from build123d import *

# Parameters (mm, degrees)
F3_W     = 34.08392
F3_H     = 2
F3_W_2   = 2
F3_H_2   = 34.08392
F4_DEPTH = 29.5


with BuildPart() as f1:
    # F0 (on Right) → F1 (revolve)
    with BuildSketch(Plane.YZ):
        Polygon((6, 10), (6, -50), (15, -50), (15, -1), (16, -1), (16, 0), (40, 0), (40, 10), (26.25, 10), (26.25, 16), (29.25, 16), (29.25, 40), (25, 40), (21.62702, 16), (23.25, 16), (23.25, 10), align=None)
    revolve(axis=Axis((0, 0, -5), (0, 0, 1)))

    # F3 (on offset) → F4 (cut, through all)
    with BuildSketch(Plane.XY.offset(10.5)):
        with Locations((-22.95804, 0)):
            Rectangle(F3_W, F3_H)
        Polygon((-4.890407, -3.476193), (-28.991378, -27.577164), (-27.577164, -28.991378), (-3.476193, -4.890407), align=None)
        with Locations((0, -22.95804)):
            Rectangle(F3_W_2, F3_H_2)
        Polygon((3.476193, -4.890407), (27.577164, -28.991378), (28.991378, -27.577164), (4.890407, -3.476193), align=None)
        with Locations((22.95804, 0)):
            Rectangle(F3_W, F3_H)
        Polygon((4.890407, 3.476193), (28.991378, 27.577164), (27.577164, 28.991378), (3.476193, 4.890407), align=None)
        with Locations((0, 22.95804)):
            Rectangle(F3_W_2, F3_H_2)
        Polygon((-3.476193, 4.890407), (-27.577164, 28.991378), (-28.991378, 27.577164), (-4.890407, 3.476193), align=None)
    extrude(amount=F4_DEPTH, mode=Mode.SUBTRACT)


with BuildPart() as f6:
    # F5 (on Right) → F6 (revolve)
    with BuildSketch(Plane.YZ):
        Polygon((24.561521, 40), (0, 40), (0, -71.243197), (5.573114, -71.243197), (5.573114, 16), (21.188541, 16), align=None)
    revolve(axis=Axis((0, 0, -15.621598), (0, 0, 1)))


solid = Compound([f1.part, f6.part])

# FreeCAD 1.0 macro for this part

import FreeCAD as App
import Part
import Sketcher
Q = App.Units.Quantity

doc = App.newDocument("Part")
body = doc.addObject("PartDesign::Body", "Body")

# Sketch on YZ plane
sketch1 = body.newObject("Sketcher::SketchObject", "Sketch")
sketch1.AttachmentSupport = (doc.getObject("YZ_Plane"), [""])
sketch1.MapMode = "FlatFace"
sketch1.addGeometry([
    Part.LineSegment(App.Vector(6, 10, 0), App.Vector(6, -50, 0)),  # 0
    Part.LineSegment(App.Vector(6, -50, 0), App.Vector(15, -50, 0)),  # 1
    Part.LineSegment(App.Vector(15, -50, 0), App.Vector(15, -1, 0)),  # 2
    Part.LineSegment(App.Vector(15, -1, 0), App.Vector(16, -1, 0)),  # 3
    Part.LineSegment(App.Vector(16, -1, 0), App.Vector(16, 0, 0)),  # 4
    Part.LineSegment(App.Vector(16, 0, 0), App.Vector(40, 0, 0)),  # 5
    Part.LineSegment(App.Vector(40, 0, 0), App.Vector(40, 10, 0)),  # 6
    Part.LineSegment(App.Vector(40, 10, 0), App.Vector(26.2, 10, 0)),  # 7
    Part.LineSegment(App.Vector(26.2, 10, 0), App.Vector(26.2, 16, 0)),  # 8
    Part.LineSegment(App.Vector(26.2, 16, 0), App.Vector(29.2, 16, 0)),  # 9
    Part.LineSegment(App.Vector(29.2, 16, 0), App.Vector(29.2, 40, 0)),  # 10
    Part.LineSegment(App.Vector(29.2, 40, 0), App.Vector(25, 40, 0)),  # 11
    Part.LineSegment(App.Vector(25, 40, 0), App.Vector(21.6, 16, 0)),  # 12
    Part.LineSegment(App.Vector(21.6, 16, 0), App.Vector(23.2, 16, 0)),  # 13
    Part.LineSegment(App.Vector(23.2, 16, 0), App.Vector(23.2, 10, 0)),  # 14
    Part.LineSegment(App.Vector(23.2, 10, 0), App.Vector(6, 10, 0)),  # 15
], False)
sketch1.addConstraint([
    Sketcher.Constraint("Coincident", 0, 2, 1, 1),
    Sketcher.Constraint("Coincident", 1, 2, 2, 1),
    Sketcher.Constraint("Coincident", 2, 2, 3, 1),
    Sketcher.Constraint("Coincident", 3, 2, 4, 1),
    Sketcher.Constraint("Coincident", 4, 2, 5, 1),
    Sketcher.Constraint("Coincident", 5, 2, 6, 1),
    Sketcher.Constraint("Coincident", 6, 2, 7, 1),
    Sketcher.Constraint("Coincident", 7, 2, 8, 1),
    Sketcher.Constraint("Coincident", 8, 2, 9, 1),
    Sketcher.Constraint("Coincident", 9, 2, 10, 1),
    Sketcher.Constraint("Coincident", 10, 2, 11, 1),
    Sketcher.Constraint("Coincident", 11, 2, 12, 1),
    Sketcher.Constraint("Coincident", 12, 2, 13, 1),
    Sketcher.Constraint("Coincident", 13, 2, 14, 1),
    Sketcher.Constraint("Coincident", 14, 2, 15, 1),
    Sketcher.Constraint("Coincident", 15, 2, 0, 1),
    Sketcher.Constraint("Vertical", 0),
    Sketcher.Constraint("Horizontal", 1),
    Sketcher.Constraint("Vertical", 2),
    Sketcher.Constraint("Horizontal", 3),
    Sketcher.Constraint("Vertical", 4),
    Sketcher.Constraint("Horizontal", 5),
    Sketcher.Constraint("Vertical", 6),
    Sketcher.Constraint("Horizontal", 7),
    Sketcher.Constraint("Vertical", 8),
    Sketcher.Constraint("Horizontal", 9),
    Sketcher.Constraint("Vertical", 10),
    Sketcher.Constraint("Horizontal", 11),
    Sketcher.Constraint("Horizontal", 13),
    Sketcher.Constraint("Vertical", 14),
    Sketcher.Constraint("Horizontal", 15),
    Sketcher.Constraint("PointOnObject", 4, 2, -1),
    Sketcher.Constraint("Horizontal", 9, 2, 12, 2),
    Sketcher.Constraint("Horizontal", 7, 2, 14, 2),
    Sketcher.Constraint("Equal", 3, 4),
    Sketcher.Constraint("Equal", 5, 10),
    Sketcher.Constraint("DistanceX", 1, 1, 1, 2, Q("9 mm")),
    Sketcher.Constraint("DistanceX", 3, 1, 3, 2, Q("1 mm")),
    Sketcher.Constraint("DistanceX", 5, 1, 5, 2, Q("24 mm")),
    Sketcher.Constraint("DistanceX", 9, 1, 9, 2, Q("3 mm")),
    Sketcher.Constraint("DistanceY", 0, 2, 0, 1, Q("60 mm")),
    Sketcher.Constraint("DistanceY", 2, 1, 2, 2, Q("49 mm")),
    Sketcher.Constraint("DistanceY", 8, 1, 8, 2, Q("6 mm")),
    Sketcher.Constraint("Angle", 12, Q("-98 deg")),
    Sketcher.Constraint("DistanceX", -1, 1, 0, 2, Q("6 mm")),
    Sketcher.Constraint("DistanceX", -1, 1, 11, 2, Q("25 mm")),
    Sketcher.Constraint("DistanceX", 13, 2, 8, 2, Q("3 mm")),
    Sketcher.Constraint("DistanceX", 7, 2, 7, 1, Q("13.75 mm")),
])
revolution = body.newObject("PartDesign::Revolution", "Revolution")
revolution.Profile = sketch1
revolution.ReferenceAxis = (sketch1, ["V_Axis"])
revolution.Angle = 360

# Sketch on XY plane
sketch2 = body.newObject("Sketcher::SketchObject", "Sketch001")
sketch2.AttachmentSupport = (doc.getObject("XY_Plane"), [""])
sketch2.MapMode = "FlatFace"
sketch2.AttachmentOffset = App.Placement(App.Vector(0, 0, 10.5), App.Rotation())
sketch2.addGeometry([
    Part.LineSegment(App.Vector(-40, 1, 0), App.Vector(-40, -1, 0)),  # 0
    Part.LineSegment(App.Vector(-40, -1, 0), App.Vector(-5.9, -1, 0)),  # 1
    Part.LineSegment(App.Vector(-5.9, -1, 0), App.Vector(-5.9, 1, 0)),  # 2
    Part.LineSegment(App.Vector(-5.9, 1, 0), App.Vector(-40, 1, 0)),  # 3
    Part.LineSegment(App.Vector(-4.9, -3.5, 0), App.Vector(-29, -27.6, 0)),  # 4
    Part.LineSegment(App.Vector(-29, -27.6, 0), App.Vector(-27.6, -29, 0)),  # 5
    Part.LineSegment(App.Vector(-27.6, -29, 0), App.Vector(-3.5, -4.9, 0)),  # 6
    Part.LineSegment(App.Vector(-3.5, -4.9, 0), App.Vector(-4.9, -3.5, 0)),  # 7
    Part.LineSegment(App.Vector(-1, -5.9, 0), App.Vector(-1, -40, 0)),  # 8
    Part.LineSegment(App.Vector(-1, -40, 0), App.Vector(1, -40, 0)),  # 9
    Part.LineSegment(App.Vector(1, -40, 0), App.Vector(1, -5.9, 0)),  # 10
    Part.LineSegment(App.Vector(1, -5.9, 0), App.Vector(-1, -5.9, 0)),  # 11
    Part.LineSegment(App.Vector(3.5, -4.9, 0), App.Vector(27.6, -29, 0)),  # 12
    Part.LineSegment(App.Vector(27.6, -29, 0), App.Vector(29, -27.6, 0)),  # 13
    Part.LineSegment(App.Vector(29, -27.6, 0), App.Vector(4.9, -3.5, 0)),  # 14
    Part.LineSegment(App.Vector(4.9, -3.5, 0), App.Vector(3.5, -4.9, 0)),  # 15
    Part.LineSegment(App.Vector(5.9, 1, 0), App.Vector(5.9, -1, 0)),  # 16
    Part.LineSegment(App.Vector(5.9, -1, 0), App.Vector(40, -1, 0)),  # 17
    Part.LineSegment(App.Vector(40, -1, 0), App.Vector(40, 1, 0)),  # 18
    Part.LineSegment(App.Vector(40, 1, 0), App.Vector(5.9, 1, 0)),  # 19
    Part.LineSegment(App.Vector(4.9, 3.5, 0), App.Vector(29, 27.6, 0)),  # 20
    Part.LineSegment(App.Vector(29, 27.6, 0), App.Vector(27.6, 29, 0)),  # 21
    Part.LineSegment(App.Vector(27.6, 29, 0), App.Vector(3.5, 4.9, 0)),  # 22
    Part.LineSegment(App.Vector(3.5, 4.9, 0), App.Vector(4.9, 3.5, 0)),  # 23
    Part.LineSegment(App.Vector(-1, 40, 0), App.Vector(-1, 5.9, 0)),  # 24
    Part.LineSegment(App.Vector(-1, 5.9, 0), App.Vector(1, 5.9, 0)),  # 25
    Part.LineSegment(App.Vector(1, 5.9, 0), App.Vector(1, 40, 0)),  # 26
    Part.LineSegment(App.Vector(1, 40, 0), App.Vector(-1, 40, 0)),  # 27
    Part.LineSegment(App.Vector(-3.5, 4.9, 0), App.Vector(-27.6, 29, 0)),  # 28
    Part.LineSegment(App.Vector(-27.6, 29, 0), App.Vector(-29, 27.6, 0)),  # 29
    Part.LineSegment(App.Vector(-29, 27.6, 0), App.Vector(-4.9, 3.5, 0)),  # 30
    Part.LineSegment(App.Vector(-4.9, 3.5, 0), App.Vector(-3.5, 4.9, 0)),  # 31
], False)
sketch2.addConstraint([
    Sketcher.Constraint("Coincident", 0, 2, 1, 1),
    Sketcher.Constraint("Coincident", 1, 2, 2, 1),
    Sketcher.Constraint("Coincident", 2, 2, 3, 1),
    Sketcher.Constraint("Coincident", 3, 2, 0, 1),
    Sketcher.Constraint("Coincident", 4, 2, 5, 1),
    Sketcher.Constraint("Coincident", 5, 2, 6, 1),
    Sketcher.Constraint("Coincident", 6, 2, 7, 1),
    Sketcher.Constraint("Coincident", 7, 2, 4, 1),
    Sketcher.Constraint("Coincident", 8, 2, 9, 1),
    Sketcher.Constraint("Coincident", 9, 2, 10, 1),
    Sketcher.Constraint("Coincident", 10, 2, 11, 1),
    Sketcher.Constraint("Coincident", 11, 2, 8, 1),
    Sketcher.Constraint("Coincident", 12, 2, 13, 1),
    Sketcher.Constraint("Coincident", 13, 2, 14, 1),
    Sketcher.Constraint("Coincident", 14, 2, 15, 1),
    Sketcher.Constraint("Coincident", 15, 2, 12, 1),
    Sketcher.Constraint("Coincident", 16, 2, 17, 1),
    Sketcher.Constraint("Coincident", 17, 2, 18, 1),
    Sketcher.Constraint("Coincident", 18, 2, 19, 1),
    Sketcher.Constraint("Coincident", 19, 2, 16, 1),
    Sketcher.Constraint("Coincident", 20, 2, 21, 1),
    Sketcher.Constraint("Coincident", 21, 2, 22, 1),
    Sketcher.Constraint("Coincident", 22, 2, 23, 1),
    Sketcher.Constraint("Coincident", 23, 2, 20, 1),
    Sketcher.Constraint("Coincident", 24, 2, 25, 1),
    Sketcher.Constraint("Coincident", 25, 2, 26, 1),
    Sketcher.Constraint("Coincident", 26, 2, 27, 1),
    Sketcher.Constraint("Coincident", 27, 2, 24, 1),
    Sketcher.Constraint("Coincident", 28, 2, 29, 1),
    Sketcher.Constraint("Coincident", 29, 2, 30, 1),
    Sketcher.Constraint("Coincident", 30, 2, 31, 1),
    Sketcher.Constraint("Coincident", 31, 2, 28, 1),
    Sketcher.Constraint("Vertical", 0),
    Sketcher.Constraint("Horizontal", 1),
    Sketcher.Constraint("Vertical", 2),
    Sketcher.Constraint("Horizontal", 3),
    Sketcher.Constraint("Vertical", 8),
    Sketcher.Constraint("Horizontal", 9),
    Sketcher.Constraint("Vertical", 10),
    Sketcher.Constraint("Horizontal", 11),
    Sketcher.Constraint("Vertical", 16),
    Sketcher.Constraint("Horizontal", 17),
    Sketcher.Constraint("Vertical", 18),
    Sketcher.Constraint("Horizontal", 19),
    Sketcher.Constraint("Vertical", 24),
    Sketcher.Constraint("Horizontal", 25),
    Sketcher.Constraint("Vertical", 26),
    Sketcher.Constraint("Horizontal", 27),
    Sketcher.Constraint("Symmetric", 2, 2, 16, 2, -1, 1),
    Sketcher.Constraint("Symmetric", 0, 2, 18, 2, -1, 1),
    Sketcher.Constraint("Symmetric", 4, 2, 20, 2, -1, 1),
    Sketcher.Constraint("Symmetric", 5, 2, 21, 2, -1, 1),
    Sketcher.Constraint("Symmetric", 6, 2, 22, 2, -1, 1),
    Sketcher.Constraint("Symmetric", 7, 2, 23, 2, -1, 1),
    Sketcher.Constraint("Symmetric", 10, 2, 24, 2, -1, 1),
    Sketcher.Constraint("Symmetric", 8, 2, 26, 2, -1, 1),
    Sketcher.Constraint("Symmetric", 12, 2, 28, 2, -1, 1),
    Sketcher.Constraint("Symmetric", 13, 2, 29, 2, -1, 1),
    Sketcher.Constraint("Symmetric", 14, 2, 30, 2, -1, 1),
    Sketcher.Constraint("Symmetric", 15, 2, 31, 2, -1, 1),
    Sketcher.Constraint("Symmetric", 5, 2, 12, 2, -2),
    Sketcher.Constraint("Symmetric", 4, 2, 13, 2, -2),
    Sketcher.Constraint("Symmetric", 7, 2, 14, 2, -2),
    Sketcher.Constraint("Symmetric", 6, 2, 15, 2, -2),
    Sketcher.Constraint("Perpendicular", 4, 5),
    Sketcher.Constraint("Perpendicular", 5, 6),
    Sketcher.Constraint("Perpendicular", 6, 7),
    Sketcher.Constraint("Parallel", 7, 12),
    Sketcher.Constraint("Horizontal", 1, 2, 16, 2),
    Sketcher.Constraint("Vertical", 11, 2, 24, 2),
    Sketcher.Constraint("Equal", 27, 0),
    Sketcher.Constraint("Equal", 19, 8),
    Sketcher.Constraint("DistanceX", 9, 1, 9, 2, Q("2 mm")),
    Sketcher.Constraint("Distance", 5, Q("2.000001 mm")),
    Sketcher.Constraint("DistanceX", 0, 2, -1, 1, Q("40 mm")),
    Sketcher.Constraint("DistanceY", 8, 2, -1, 1, Q("40 mm")),
    Sketcher.Constraint("DistanceX", 1, 1, 1, 2, Q("34.08392 mm")),
    Sketcher.Constraint("DistanceX", 4, 2, 1, 2, Q("23.075298 mm")),
    Sketcher.Constraint("DistanceY", 12, 2, 10, 2, Q("23.075298 mm")),
    Sketcher.Constraint("DistanceX", 6, 2, 14, 2, Q("8.3666 mm")),
])
pocket1 = body.newObject("PartDesign::Pocket", "Pocket")
pocket1.Profile = sketch2
pocket1.Type = "ThroughAll"
pocket1.Reversed = True
body2 = doc.addObject("PartDesign::Body", "Body001")

# Sketch on YZ plane
sketch3 = body2.newObject("Sketcher::SketchObject", "Sketch002")
sketch3.AttachmentSupport = (doc.getObject("YZ_Plane001"), [""])
sketch3.MapMode = "FlatFace"
sketch3.addGeometry([
    Part.LineSegment(App.Vector(25, 40, 0), App.Vector(0, 40, 0)),  # 0
    Part.LineSegment(App.Vector(0, 40, 0), App.Vector(0, -71, 0)),  # 1
    Part.LineSegment(App.Vector(0, -71, 0), App.Vector(6, -71, 0)),  # 2
    Part.LineSegment(App.Vector(6, -71, 0), App.Vector(6, 16, 0)),  # 3
    Part.LineSegment(App.Vector(6, 16, 0), App.Vector(21, 16, 0)),  # 4
    Part.LineSegment(App.Vector(21, 16, 0), App.Vector(25, 40, 0)),  # 5
], False)
sketch3.addConstraint([
    Sketcher.Constraint("Coincident", 0, 2, 1, 1),
    Sketcher.Constraint("Coincident", 1, 2, 2, 1),
    Sketcher.Constraint("Coincident", 2, 2, 3, 1),
    Sketcher.Constraint("Coincident", 3, 2, 4, 1),
    Sketcher.Constraint("Coincident", 4, 2, 5, 1),
    Sketcher.Constraint("Coincident", 5, 2, 0, 1),
    Sketcher.Constraint("Horizontal", 0),
    Sketcher.Constraint("Vertical", 1),
    Sketcher.Constraint("Horizontal", 2),
    Sketcher.Constraint("Vertical", 3),
    Sketcher.Constraint("Horizontal", 4),
    Sketcher.Constraint("PointOnObject", 0, 2, -2),
    Sketcher.Constraint("Angle", 5, Q("82 deg")),
    Sketcher.Constraint("DistanceY", -1, 1, 0, 2, Q("40 mm")),
    Sketcher.Constraint("DistanceY", -1, 1, 3, 2, Q("16 mm")),
    Sketcher.Constraint("DistanceX", 0, 2, 0, 1, Q("24.561521 mm")),
    Sketcher.Constraint("DistanceX", 2, 1, 2, 2, Q("5.573114 mm")),
    Sketcher.Constraint("DistanceY", 1, 2, 1, 1, Q("111.243197 mm")),
])
revolution2 = body2.newObject("PartDesign::Revolution", "Revolution001")
revolution2.Profile = sketch3
revolution2.ReferenceAxis = (sketch3, ["V_Axis"])
revolution2.Angle = 360

doc.recompute()
